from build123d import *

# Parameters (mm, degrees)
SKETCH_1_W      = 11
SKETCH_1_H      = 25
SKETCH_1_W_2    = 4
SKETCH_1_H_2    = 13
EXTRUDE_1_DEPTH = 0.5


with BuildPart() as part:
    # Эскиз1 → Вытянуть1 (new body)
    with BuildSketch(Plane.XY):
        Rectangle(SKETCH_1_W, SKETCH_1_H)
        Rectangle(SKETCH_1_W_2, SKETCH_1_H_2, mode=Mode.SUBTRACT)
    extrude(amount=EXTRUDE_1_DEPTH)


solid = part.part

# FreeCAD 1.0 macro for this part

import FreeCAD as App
import Part
import Sketcher

V = App.Vector
Q = App.Units.Quantity


def add_polygon(sketch, points):
    """Adds a closed chain of lines whose ends are joined by coincident constraints."""
    first, n = sketch.GeometryCount, len(points)
    for a, b in zip(points, points[1:] + points[:1]):
        sketch.addGeometry(Part.LineSegment(App.Vector(*a, 0), App.Vector(*b, 0)), False)
    for i in range(n):
        sketch.addConstraint(Sketcher.Constraint("Coincident", first + i, 2, first + (i + 1) % n, 1))

doc = App.newDocument("Part")
body = doc.addObject("PartDesign::Body", "Body")

sketch1 = body.newObject("Sketcher::SketchObject", "Sketch")
sketch1.AttachmentSupport = (doc.getObject("XY_Plane"), [""])
sketch1.MapMode = "FlatFace"
add_polygon(sketch1, [(-5.5, 12.5), (-5.5, -12.5), (5.5, -12.5), (5.5, 12.5)])
add_polygon(sketch1, [(2, -6.5), (-2, -6.5), (-2, 6.5), (2, 6.5)])
sketch1.addConstraint(Sketcher.Constraint("Vertical", 0))
sketch1.addConstraint(Sketcher.Constraint("Horizontal", 1))
sketch1.addConstraint(Sketcher.Constraint("Vertical", 2))
sketch1.addConstraint(Sketcher.Constraint("Horizontal", 3))
sketch1.addConstraint(Sketcher.Constraint("Horizontal", 4))
sketch1.addConstraint(Sketcher.Constraint("Vertical", 5))
sketch1.addConstraint(Sketcher.Constraint("Horizontal", 6))
sketch1.addConstraint(Sketcher.Constraint("Vertical", 7))
sketch1.addConstraint(Sketcher.Constraint("Symmetric", 0, 2, 2, 2, -1, 1))
sketch1.addConstraint(Sketcher.Constraint("Symmetric", 4, 2, 6, 2, -1, 1))
sketch1.addConstraint(Sketcher.Constraint("DistanceX", 1, 1, 1, 2, Q("11 mm")))
sketch1.addConstraint(Sketcher.Constraint("DistanceX", 4, 2, 4, 1, Q("4 mm")))
sketch1.addConstraint(Sketcher.Constraint("DistanceY", 0, 2, 0, 1, Q("25 mm")))
sketch1.addConstraint(Sketcher.Constraint("DistanceY", 5, 1, 5, 2, Q("13 mm")))
pad1 = body.newObject("PartDesign::Pad", "Pad")
pad1.Profile = sketch1
pad1.Length = 0.5

doc.recompute()
